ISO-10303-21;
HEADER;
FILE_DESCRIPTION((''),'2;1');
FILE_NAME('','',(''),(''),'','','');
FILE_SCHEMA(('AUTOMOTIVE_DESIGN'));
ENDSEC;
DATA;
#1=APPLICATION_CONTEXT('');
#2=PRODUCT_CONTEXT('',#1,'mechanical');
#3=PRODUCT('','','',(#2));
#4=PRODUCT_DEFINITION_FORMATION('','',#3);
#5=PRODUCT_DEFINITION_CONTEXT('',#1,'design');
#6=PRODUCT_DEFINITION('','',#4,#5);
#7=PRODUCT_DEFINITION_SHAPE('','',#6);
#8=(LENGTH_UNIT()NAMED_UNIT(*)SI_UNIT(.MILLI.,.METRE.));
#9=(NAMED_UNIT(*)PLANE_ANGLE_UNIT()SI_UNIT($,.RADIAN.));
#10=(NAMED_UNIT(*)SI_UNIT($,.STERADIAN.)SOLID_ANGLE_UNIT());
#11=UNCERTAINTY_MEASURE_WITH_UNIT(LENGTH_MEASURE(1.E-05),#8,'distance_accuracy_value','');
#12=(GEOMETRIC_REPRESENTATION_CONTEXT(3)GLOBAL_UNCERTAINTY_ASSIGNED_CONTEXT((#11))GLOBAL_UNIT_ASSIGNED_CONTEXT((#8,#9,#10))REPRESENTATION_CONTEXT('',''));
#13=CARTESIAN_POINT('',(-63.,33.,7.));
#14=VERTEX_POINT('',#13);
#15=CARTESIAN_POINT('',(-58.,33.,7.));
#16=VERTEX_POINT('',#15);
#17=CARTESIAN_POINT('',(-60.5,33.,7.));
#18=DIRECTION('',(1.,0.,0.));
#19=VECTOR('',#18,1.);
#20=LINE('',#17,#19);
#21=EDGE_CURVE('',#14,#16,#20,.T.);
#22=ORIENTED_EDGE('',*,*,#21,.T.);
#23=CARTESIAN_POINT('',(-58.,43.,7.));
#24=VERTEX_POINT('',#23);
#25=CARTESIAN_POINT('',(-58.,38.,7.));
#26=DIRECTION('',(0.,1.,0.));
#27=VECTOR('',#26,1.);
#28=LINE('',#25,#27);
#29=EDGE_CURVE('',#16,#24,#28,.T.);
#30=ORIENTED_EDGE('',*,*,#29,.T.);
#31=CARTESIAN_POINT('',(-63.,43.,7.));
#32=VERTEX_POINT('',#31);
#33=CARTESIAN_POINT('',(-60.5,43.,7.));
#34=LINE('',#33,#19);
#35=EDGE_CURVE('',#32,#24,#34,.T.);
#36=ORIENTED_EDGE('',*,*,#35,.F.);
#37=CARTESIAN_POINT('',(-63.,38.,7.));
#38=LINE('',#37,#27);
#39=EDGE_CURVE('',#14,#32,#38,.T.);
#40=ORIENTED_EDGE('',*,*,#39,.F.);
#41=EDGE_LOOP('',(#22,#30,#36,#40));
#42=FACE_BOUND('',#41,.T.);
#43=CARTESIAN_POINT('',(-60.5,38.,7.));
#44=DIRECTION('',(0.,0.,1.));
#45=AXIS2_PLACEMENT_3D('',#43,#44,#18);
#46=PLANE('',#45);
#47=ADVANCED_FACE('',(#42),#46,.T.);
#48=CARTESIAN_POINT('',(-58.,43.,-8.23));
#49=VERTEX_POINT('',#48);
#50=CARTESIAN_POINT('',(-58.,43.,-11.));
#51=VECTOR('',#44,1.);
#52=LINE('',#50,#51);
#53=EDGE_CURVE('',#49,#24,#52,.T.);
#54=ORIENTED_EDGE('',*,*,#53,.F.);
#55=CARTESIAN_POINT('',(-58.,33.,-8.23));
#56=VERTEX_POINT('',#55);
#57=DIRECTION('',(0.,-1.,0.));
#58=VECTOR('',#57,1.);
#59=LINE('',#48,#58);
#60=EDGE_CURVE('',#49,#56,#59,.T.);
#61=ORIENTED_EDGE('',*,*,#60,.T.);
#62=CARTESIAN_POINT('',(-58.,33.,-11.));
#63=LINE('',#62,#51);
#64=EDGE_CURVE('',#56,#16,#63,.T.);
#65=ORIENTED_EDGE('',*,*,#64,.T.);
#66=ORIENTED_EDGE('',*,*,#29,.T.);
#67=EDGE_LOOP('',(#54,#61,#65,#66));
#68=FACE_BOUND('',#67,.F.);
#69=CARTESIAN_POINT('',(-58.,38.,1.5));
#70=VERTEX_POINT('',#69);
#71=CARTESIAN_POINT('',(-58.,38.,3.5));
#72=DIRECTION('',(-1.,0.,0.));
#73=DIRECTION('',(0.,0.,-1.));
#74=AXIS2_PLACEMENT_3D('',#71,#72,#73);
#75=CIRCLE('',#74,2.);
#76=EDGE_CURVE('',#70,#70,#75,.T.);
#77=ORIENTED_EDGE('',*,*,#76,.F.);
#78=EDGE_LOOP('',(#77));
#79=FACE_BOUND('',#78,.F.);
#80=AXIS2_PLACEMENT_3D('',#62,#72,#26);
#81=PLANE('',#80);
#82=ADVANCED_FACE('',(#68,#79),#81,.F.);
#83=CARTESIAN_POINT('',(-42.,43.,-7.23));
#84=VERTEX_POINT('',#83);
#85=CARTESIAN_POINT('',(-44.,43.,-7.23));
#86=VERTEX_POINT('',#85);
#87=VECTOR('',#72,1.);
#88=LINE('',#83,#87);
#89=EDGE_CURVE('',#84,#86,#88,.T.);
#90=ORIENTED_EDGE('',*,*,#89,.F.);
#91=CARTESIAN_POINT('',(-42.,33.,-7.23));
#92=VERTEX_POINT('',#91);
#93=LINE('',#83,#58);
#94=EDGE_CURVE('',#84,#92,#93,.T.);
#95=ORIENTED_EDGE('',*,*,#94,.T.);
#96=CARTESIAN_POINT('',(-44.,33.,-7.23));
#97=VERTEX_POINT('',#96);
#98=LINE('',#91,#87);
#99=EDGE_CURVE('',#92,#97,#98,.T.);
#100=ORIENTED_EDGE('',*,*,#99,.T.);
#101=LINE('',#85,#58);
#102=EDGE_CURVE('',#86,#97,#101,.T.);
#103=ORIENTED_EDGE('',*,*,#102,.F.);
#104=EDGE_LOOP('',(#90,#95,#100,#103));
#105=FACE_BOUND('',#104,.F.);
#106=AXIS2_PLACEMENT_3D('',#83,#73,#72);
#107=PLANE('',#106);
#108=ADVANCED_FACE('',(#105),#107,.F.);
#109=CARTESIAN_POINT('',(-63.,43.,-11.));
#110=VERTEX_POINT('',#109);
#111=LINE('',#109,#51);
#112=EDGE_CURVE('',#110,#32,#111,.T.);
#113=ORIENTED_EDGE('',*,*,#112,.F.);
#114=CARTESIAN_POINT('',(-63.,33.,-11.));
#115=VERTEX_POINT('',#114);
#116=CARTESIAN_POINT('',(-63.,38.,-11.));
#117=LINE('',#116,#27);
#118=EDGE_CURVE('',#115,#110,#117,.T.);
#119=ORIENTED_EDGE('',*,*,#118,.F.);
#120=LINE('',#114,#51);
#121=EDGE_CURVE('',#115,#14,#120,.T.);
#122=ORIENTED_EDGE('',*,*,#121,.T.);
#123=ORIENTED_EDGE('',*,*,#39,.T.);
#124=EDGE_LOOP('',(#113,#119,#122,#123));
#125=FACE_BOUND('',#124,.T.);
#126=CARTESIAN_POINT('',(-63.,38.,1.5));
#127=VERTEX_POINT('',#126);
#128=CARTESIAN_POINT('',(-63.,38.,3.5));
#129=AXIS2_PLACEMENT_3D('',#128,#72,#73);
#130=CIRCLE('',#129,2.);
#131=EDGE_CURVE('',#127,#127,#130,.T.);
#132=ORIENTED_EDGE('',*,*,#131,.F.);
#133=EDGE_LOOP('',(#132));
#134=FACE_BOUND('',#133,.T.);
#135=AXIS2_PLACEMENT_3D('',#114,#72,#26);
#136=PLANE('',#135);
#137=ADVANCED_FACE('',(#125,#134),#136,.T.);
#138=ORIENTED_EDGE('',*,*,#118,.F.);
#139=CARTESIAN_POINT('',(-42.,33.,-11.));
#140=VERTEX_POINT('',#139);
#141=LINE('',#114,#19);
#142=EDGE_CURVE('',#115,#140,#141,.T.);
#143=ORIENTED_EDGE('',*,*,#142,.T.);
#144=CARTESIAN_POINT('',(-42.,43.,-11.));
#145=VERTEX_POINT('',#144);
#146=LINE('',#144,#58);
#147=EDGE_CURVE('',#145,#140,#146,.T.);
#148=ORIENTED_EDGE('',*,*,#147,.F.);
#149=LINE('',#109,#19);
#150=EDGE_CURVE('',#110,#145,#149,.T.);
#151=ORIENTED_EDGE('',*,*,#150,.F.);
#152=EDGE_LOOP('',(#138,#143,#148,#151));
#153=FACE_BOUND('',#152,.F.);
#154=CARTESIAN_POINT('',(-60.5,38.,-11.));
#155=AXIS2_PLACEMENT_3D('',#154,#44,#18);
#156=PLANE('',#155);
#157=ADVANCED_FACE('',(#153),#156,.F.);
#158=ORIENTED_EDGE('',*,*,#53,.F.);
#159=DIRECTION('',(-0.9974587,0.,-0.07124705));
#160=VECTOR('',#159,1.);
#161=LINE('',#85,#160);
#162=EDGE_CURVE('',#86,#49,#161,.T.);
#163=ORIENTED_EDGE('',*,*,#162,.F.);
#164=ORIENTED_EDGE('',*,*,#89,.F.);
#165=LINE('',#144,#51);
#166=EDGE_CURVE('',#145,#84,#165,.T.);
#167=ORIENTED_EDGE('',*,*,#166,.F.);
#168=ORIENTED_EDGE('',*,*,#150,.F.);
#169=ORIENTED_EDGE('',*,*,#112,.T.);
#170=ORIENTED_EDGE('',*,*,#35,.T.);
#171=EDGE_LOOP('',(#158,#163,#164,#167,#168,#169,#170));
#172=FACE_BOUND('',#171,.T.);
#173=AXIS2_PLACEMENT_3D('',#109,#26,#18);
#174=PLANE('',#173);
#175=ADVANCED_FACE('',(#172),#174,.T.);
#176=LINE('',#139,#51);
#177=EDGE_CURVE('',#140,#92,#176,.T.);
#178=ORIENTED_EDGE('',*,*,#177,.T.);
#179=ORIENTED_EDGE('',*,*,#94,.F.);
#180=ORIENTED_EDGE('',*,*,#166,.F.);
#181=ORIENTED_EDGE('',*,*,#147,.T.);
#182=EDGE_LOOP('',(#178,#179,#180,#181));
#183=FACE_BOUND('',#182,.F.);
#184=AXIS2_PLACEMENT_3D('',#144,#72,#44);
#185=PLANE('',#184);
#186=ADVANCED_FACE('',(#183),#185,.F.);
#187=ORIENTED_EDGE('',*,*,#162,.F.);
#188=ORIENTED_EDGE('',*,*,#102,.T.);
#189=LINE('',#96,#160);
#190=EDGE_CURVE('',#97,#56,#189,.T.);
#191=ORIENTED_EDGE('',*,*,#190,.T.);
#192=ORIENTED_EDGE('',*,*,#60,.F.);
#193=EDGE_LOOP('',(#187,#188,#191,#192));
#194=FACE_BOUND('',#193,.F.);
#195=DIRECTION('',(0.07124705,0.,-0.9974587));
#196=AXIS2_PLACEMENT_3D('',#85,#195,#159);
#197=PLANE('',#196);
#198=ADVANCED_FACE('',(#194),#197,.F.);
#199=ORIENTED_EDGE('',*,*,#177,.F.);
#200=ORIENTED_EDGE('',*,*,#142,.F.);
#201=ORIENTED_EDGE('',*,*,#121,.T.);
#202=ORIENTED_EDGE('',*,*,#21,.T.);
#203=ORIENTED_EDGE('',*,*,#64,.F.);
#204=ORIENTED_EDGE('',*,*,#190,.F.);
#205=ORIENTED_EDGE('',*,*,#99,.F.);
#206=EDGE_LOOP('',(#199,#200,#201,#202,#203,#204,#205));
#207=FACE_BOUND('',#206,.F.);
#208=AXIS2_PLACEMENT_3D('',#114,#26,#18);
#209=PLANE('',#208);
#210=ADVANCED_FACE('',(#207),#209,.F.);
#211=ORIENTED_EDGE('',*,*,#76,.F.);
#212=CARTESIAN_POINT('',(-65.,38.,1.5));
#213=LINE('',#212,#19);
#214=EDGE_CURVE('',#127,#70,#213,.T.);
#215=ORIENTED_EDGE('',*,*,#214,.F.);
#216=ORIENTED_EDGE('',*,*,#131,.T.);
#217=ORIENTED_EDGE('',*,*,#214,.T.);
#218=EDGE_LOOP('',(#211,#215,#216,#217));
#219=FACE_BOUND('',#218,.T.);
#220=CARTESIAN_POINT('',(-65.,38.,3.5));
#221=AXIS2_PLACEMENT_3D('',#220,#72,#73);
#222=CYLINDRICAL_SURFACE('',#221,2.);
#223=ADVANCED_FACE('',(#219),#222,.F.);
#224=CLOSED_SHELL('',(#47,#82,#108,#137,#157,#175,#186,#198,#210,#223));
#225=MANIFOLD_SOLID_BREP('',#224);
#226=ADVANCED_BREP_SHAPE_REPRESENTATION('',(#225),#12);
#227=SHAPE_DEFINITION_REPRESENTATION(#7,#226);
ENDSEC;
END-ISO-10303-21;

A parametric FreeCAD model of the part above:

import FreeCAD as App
import Part
import Sketcher
Q = App.Units.Quantity

doc = App.newDocument("Part")
body = doc.addObject("PartDesign::Body", "Body")

# Sketch on YZ plane
sketch1 = body.newObject("Sketcher::SketchObject", "Sketch")
sketch1.AttachmentSupport = (doc.getObject("YZ_Plane"), [""])
sketch1.MapMode = "FlatFace"
sketch1.AttachmentOffset = App.Placement(App.Vector(0, 0, -65), App.Rotation())
sketch1.addGeometry(Part.Circle(App.Vector(-38, 3.5, 0), App.Vector(0, 0, 1), 2), False)
sketch1.addConstraint([
    Sketcher.Constraint("Diameter", 0, Q("4 mm")),
    Sketcher.Constraint("DistanceX", 0, 3, -1, 1, Q("38 mm")),
    Sketcher.Constraint("DistanceY", -1, 1, 0, 3, Q("3.5 mm")),
])
pad1 = body.newObject("PartDesign::Pad", "Pad")
pad1.Profile = sketch1
pad1.Length = 10
body2 = doc.addObject("PartDesign::Body", "Body001")

# Sketch on XY plane
sketch2 = body2.newObject("Sketcher::SketchObject", "Sketch001")
sketch2.AttachmentSupport = (doc.getObject("XY_Plane001"), [""])
sketch2.MapMode = "FlatFace"
sketch2.AttachmentOffset = App.Placement(App.Vector(0, 0, -11), App.Rotation())
sketch2.addGeometry([
    Part.LineSegment(App.Vector(-63, -33, 0), App.Vector(-63, -43, 0)),
    Part.LineSegment(App.Vector(-63, -43, 0), App.Vector(-58, -43, 0)),
    Part.LineSegment(App.Vector(-58, -43, 0), App.Vector(-58, -33, 0)),
    Part.LineSegment(App.Vector(-58, -33, 0), App.Vector(-63, -33, 0)),
], False)
sketch2.addConstraint([
    Sketcher.Constraint("Coincident", 0, 2, 1, 1),
    Sketcher.Constraint("Coincident", 1, 2, 2, 1),
    Sketcher.Constraint("Coincident", 2, 2, 3, 1),
    Sketcher.Constraint("Coincident", 3, 2, 0, 1),
    Sketcher.Constraint("Vertical", 0),
    Sketcher.Constraint("Horizontal", 1),
    Sketcher.Constraint("Vertical", 2),
    Sketcher.Constraint("Horizontal", 3),
    Sketcher.Constraint("DistanceX", 1, 1, 1, 2, Q("5 mm")),
    Sketcher.Constraint("DistanceY", 0, 2, 0, 1, Q("10 mm")),
    Sketcher.Constraint("DistanceX", 0, 2, -1, 1, Q("63 mm")),
    Sketcher.Constraint("DistanceY", 0, 2, -1, 1, Q("43 mm")),
])
pad2 = body2.newObject("PartDesign::Pad", "Pad001")
pad2.Profile = sketch2
pad2.Length = 18
doc.recompute()

boolean = body2.newObject("PartDesign::Boolean", "Boolean")
boolean.Type = "Cut"
boolean.addObjects([body])
body3 = doc.addObject("PartDesign::Body", "Body002")

# Sketch on XZ plane
sketch3 = body3.newObject("Sketcher::SketchObject", "Sketch002")
sketch3.AttachmentSupport = (doc.getObject("XZ_Plane002"), [""])
sketch3.MapMode = "FlatFace"
sketch3.addGeometry([
    Part.LineSegment(App.Vector(-49.224583, -10.083495, 0), App.Vector(-33.224583, -10.083495, 0)),  # 0
    Part.LineSegment(App.Vector(-33.224583, -10.083495, 0), App.Vector(-33.224583, -6.313495, 0)),  # 1
    Part.LineSegment(App.Vector(-33.224583, -6.313495, 0), App.Vector(-35.224583, -6.313495, 0)),  # 2
    Part.LineSegment(App.Vector(-35.224583, -6.313495, 0), App.Vector(-49.224583, -7.313495, 0)),  # 3
    Part.LineSegment(App.Vector(-49.224583, -7.313495, 0), App.Vector(-49.224583, -10.083495, 0)),  # 4
], False)
sketch3.addConstraint([
    Sketcher.Constraint("Coincident", 0, 2, 1, 1),
    Sketcher.Constraint("Coincident", 1, 2, 2, 1),
    Sketcher.Constraint("Coincident", 2, 2, 3, 1),
    Sketcher.Constraint("Coincident", 3, 2, 4, 1),
    Sketcher.Constraint("Coincident", 4, 2, 0, 1),
    Sketcher.Constraint("Horizontal", 0),
    Sketcher.Constraint("Vertical", 1),
    Sketcher.Constraint("Horizontal", 2),
    Sketcher.Constraint("Vertical", 4),
    Sketcher.Constraint("DistanceX", 0, 1, 0, 2, Q("16 mm")),
    Sketcher.Constraint("DistanceX", 2, 2, 2, 1, Q("2 mm")),
    Sketcher.Constraint("DistanceY", 3, 2, 2, 2, Q("1 mm")),
    Sketcher.Constraint("DistanceY", 1, 1, 1, 2, Q("3.77 mm")),
    Sketcher.Constraint("DistanceX", 0, 2, -1, 1, Q("33.224583 mm")),
    Sketcher.Constraint("DistanceY", 0, 2, -1, 1, Q("10.083495 mm")),
])
pad3 = body3.newObject("PartDesign::Pad", "Pad002")
pad3.Profile = sketch3
pad3.Length = 10
body4 = doc.addObject("PartDesign::Body", "Body003")
doc.recompute()

body3.Placement = App.Placement(App.Vector(-8.775417, -33, -0.916505), App.Rotation(App.Vector(0, 0, 1), 0))
boolean2 = body4.newObject("PartDesign::Boolean", "Boolean001")
boolean2.Type = "Fuse"
boolean2.addObjects([body3])
doc.recompute()

boolean3 = body4.newObject("PartDesign::Boolean", "Boolean002")
boolean3.Type = "Fuse"
boolean3.addObjects([body2])
body5 = doc.addObject("PartDesign::Body", "Body004")
doc.recompute()

body4.Placement = App.Placement(App.Vector(0, 76, 0), App.Rotation(App.Vector(0, 0, 1), 0))
boolean4 = body5.newObject("PartDesign::Boolean", "Boolean003")
boolean4.Type = "Fuse"
boolean4.addObjects([body4])

doc.recompute()
